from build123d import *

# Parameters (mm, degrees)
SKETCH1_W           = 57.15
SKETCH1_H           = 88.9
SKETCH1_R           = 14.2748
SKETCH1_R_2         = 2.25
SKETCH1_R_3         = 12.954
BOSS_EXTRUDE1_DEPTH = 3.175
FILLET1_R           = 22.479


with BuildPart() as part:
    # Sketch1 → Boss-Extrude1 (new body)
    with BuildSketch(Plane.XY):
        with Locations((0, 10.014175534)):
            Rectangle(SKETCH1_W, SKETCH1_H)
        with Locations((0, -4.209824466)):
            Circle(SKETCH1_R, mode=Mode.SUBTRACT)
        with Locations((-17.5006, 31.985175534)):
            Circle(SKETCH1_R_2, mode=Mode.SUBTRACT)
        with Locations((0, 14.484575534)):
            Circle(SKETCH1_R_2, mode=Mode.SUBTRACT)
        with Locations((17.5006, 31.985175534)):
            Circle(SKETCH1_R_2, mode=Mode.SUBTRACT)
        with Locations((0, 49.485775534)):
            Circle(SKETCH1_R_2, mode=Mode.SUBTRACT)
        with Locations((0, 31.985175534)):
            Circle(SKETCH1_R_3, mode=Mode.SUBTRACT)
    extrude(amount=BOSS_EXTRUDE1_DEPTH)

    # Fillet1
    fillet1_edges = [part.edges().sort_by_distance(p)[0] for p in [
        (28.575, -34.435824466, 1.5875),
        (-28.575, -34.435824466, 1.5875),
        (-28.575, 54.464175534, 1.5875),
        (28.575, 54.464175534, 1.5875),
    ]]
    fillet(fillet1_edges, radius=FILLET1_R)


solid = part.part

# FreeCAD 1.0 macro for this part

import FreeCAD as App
import Part
import Sketcher
Q = App.Units.Quantity


def edges_at(feature, points):
    """Names of the edges that pass closest to the given points."""
    edges = feature.Shape.Edges
    near = lambda p: min(range(len(edges)), key=lambda i: edges[i].distToShape(Part.Vertex(*p))[0])
    return sorted({f"Edge{near(p) + 1}" for p in points})

doc = App.newDocument("Part")
body = doc.addObject("PartDesign::Body", "Body")

# Sketch on XY plane
sketch1 = doc.addObject("Sketcher::SketchObject", "Sketch")
body.addObject(sketch1)
sketch1.AttachmentSupport = (doc.XY_Plane, [""])
sketch1.MapMode = "FlatFace"
sketch1.addGeometry([
    Part.LineSegment(App.Vector(-28.6, 54.5, 0), App.Vector(-28.6, -34.4, 0)),  # 0
    Part.LineSegment(App.Vector(-28.6, -34.4, 0), App.Vector(28.6, -34.4, 0)),  # 1
    Part.LineSegment(App.Vector(28.6, -34.4, 0), App.Vector(28.6, 54.5, 0)),  # 2
    Part.LineSegment(App.Vector(28.6, 54.5, 0), App.Vector(-28.6, 54.5, 0)),  # 3
    Part.Circle(App.Vector(0, -4.2, 0), App.Vector(0, 0, 1), 14.3),  # 4
    Part.Circle(App.Vector(0, 14.5, 0), App.Vector(0, 0, 1), 2.2),  # 5
    Part.Circle(App.Vector(-17.5, 32, 0), App.Vector(0, 0, 1), 2.2),  # 6
    Part.Circle(App.Vector(0, 32, 0), App.Vector(0, 0, 1), 13),  # 7
    Part.Circle(App.Vector(17.5, 32, 0), App.Vector(0, 0, 1), 2.2),  # 8
    Part.Circle(App.Vector(0, 49.5, 0), App.Vector(0, 0, 1), 2.2),  # 9
], False)
sketch1.addConstraint([
    Sketcher.Constraint("Coincident", 0, 2, 1, 1),
    Sketcher.Constraint("Coincident", 1, 2, 2, 1),
    Sketcher.Constraint("Coincident", 2, 2, 3, 1),
    Sketcher.Constraint("Coincident", 3, 2, 0, 1),
    Sketcher.Constraint("Vertical", 0),
    Sketcher.Constraint("Horizontal", 1),
    Sketcher.Constraint("Vertical", 2),
    Sketcher.Constraint("Horizontal", 3),
    Sketcher.Constraint("Equal", 5, 6),
    Sketcher.Constraint("Equal", 6, 8),
    Sketcher.Constraint("Equal", 8, 9),
    Sketcher.Constraint("Symmetric", 6, 3, 8, 3, -2),
    Sketcher.Constraint("PointOnObject", 4, 3, -2),
    Sketcher.Constraint("PointOnObject", 5, 3, -2),
    Sketcher.Constraint("PointOnObject", 7, 3, -2),
    Sketcher.Constraint("PointOnObject", 9, 3, -2),
    Sketcher.Constraint("Horizontal", 6, 3, 7, 3),
    Sketcher.Constraint("Diameter", 7, Q("1.02 in")),
    Sketcher.Constraint("Diameter", 4, Q("1.124 in")),
    Sketcher.Constraint("DistanceY", 0, 2, 0, 1, Q("3.5 in")),
    Sketcher.Constraint("DistanceX", 1, 1, 1, 2, Q("2.25 in")),
    Sketcher.Constraint("Diameter", 5, Q("4.5 mm")),
    Sketcher.Constraint("DistanceY", 0, 2, 4, 3, Q("1.19 in")),
    Sketcher.Constraint("DistanceX", 6, 3, -1, 1, Q("0.689 in")),
    Sketcher.Constraint("DistanceX", 0, 2, -1, 1, Q("1.125 in")),
    Sketcher.Constraint("DistanceY", 4, 3, 5, 3, Q("0.736 in")),
    Sketcher.Constraint("DistanceY", 5, 3, 6, 3, Q("0.689 in")),
    Sketcher.Constraint("DistanceY", 7, 3, 9, 3, Q("0.689 in")),
    Sketcher.Constraint("DistanceY", 4, 3, -1, 1, Q("4.209824 mm")),
])
pad1 = doc.addObject("PartDesign::Pad", "Pad")
body.addObject(pad1)
pad1.Profile = sketch1
pad1.Length = Q("0.125 in")
doc.recompute()

fillet = doc.addObject("PartDesign::Fillet", "Fillet")
body.addObject(fillet)
fillet.Base = (pad1, edges_at(pad1, [
    (28.575, -34.436, 1.587),
    (-28.575, -34.436, 1.587),
    (-28.575, 54.464, 1.587),
    (28.575, 54.464, 1.587),
]))
fillet.Radius = Q("0.885 in")

doc.recompute()
